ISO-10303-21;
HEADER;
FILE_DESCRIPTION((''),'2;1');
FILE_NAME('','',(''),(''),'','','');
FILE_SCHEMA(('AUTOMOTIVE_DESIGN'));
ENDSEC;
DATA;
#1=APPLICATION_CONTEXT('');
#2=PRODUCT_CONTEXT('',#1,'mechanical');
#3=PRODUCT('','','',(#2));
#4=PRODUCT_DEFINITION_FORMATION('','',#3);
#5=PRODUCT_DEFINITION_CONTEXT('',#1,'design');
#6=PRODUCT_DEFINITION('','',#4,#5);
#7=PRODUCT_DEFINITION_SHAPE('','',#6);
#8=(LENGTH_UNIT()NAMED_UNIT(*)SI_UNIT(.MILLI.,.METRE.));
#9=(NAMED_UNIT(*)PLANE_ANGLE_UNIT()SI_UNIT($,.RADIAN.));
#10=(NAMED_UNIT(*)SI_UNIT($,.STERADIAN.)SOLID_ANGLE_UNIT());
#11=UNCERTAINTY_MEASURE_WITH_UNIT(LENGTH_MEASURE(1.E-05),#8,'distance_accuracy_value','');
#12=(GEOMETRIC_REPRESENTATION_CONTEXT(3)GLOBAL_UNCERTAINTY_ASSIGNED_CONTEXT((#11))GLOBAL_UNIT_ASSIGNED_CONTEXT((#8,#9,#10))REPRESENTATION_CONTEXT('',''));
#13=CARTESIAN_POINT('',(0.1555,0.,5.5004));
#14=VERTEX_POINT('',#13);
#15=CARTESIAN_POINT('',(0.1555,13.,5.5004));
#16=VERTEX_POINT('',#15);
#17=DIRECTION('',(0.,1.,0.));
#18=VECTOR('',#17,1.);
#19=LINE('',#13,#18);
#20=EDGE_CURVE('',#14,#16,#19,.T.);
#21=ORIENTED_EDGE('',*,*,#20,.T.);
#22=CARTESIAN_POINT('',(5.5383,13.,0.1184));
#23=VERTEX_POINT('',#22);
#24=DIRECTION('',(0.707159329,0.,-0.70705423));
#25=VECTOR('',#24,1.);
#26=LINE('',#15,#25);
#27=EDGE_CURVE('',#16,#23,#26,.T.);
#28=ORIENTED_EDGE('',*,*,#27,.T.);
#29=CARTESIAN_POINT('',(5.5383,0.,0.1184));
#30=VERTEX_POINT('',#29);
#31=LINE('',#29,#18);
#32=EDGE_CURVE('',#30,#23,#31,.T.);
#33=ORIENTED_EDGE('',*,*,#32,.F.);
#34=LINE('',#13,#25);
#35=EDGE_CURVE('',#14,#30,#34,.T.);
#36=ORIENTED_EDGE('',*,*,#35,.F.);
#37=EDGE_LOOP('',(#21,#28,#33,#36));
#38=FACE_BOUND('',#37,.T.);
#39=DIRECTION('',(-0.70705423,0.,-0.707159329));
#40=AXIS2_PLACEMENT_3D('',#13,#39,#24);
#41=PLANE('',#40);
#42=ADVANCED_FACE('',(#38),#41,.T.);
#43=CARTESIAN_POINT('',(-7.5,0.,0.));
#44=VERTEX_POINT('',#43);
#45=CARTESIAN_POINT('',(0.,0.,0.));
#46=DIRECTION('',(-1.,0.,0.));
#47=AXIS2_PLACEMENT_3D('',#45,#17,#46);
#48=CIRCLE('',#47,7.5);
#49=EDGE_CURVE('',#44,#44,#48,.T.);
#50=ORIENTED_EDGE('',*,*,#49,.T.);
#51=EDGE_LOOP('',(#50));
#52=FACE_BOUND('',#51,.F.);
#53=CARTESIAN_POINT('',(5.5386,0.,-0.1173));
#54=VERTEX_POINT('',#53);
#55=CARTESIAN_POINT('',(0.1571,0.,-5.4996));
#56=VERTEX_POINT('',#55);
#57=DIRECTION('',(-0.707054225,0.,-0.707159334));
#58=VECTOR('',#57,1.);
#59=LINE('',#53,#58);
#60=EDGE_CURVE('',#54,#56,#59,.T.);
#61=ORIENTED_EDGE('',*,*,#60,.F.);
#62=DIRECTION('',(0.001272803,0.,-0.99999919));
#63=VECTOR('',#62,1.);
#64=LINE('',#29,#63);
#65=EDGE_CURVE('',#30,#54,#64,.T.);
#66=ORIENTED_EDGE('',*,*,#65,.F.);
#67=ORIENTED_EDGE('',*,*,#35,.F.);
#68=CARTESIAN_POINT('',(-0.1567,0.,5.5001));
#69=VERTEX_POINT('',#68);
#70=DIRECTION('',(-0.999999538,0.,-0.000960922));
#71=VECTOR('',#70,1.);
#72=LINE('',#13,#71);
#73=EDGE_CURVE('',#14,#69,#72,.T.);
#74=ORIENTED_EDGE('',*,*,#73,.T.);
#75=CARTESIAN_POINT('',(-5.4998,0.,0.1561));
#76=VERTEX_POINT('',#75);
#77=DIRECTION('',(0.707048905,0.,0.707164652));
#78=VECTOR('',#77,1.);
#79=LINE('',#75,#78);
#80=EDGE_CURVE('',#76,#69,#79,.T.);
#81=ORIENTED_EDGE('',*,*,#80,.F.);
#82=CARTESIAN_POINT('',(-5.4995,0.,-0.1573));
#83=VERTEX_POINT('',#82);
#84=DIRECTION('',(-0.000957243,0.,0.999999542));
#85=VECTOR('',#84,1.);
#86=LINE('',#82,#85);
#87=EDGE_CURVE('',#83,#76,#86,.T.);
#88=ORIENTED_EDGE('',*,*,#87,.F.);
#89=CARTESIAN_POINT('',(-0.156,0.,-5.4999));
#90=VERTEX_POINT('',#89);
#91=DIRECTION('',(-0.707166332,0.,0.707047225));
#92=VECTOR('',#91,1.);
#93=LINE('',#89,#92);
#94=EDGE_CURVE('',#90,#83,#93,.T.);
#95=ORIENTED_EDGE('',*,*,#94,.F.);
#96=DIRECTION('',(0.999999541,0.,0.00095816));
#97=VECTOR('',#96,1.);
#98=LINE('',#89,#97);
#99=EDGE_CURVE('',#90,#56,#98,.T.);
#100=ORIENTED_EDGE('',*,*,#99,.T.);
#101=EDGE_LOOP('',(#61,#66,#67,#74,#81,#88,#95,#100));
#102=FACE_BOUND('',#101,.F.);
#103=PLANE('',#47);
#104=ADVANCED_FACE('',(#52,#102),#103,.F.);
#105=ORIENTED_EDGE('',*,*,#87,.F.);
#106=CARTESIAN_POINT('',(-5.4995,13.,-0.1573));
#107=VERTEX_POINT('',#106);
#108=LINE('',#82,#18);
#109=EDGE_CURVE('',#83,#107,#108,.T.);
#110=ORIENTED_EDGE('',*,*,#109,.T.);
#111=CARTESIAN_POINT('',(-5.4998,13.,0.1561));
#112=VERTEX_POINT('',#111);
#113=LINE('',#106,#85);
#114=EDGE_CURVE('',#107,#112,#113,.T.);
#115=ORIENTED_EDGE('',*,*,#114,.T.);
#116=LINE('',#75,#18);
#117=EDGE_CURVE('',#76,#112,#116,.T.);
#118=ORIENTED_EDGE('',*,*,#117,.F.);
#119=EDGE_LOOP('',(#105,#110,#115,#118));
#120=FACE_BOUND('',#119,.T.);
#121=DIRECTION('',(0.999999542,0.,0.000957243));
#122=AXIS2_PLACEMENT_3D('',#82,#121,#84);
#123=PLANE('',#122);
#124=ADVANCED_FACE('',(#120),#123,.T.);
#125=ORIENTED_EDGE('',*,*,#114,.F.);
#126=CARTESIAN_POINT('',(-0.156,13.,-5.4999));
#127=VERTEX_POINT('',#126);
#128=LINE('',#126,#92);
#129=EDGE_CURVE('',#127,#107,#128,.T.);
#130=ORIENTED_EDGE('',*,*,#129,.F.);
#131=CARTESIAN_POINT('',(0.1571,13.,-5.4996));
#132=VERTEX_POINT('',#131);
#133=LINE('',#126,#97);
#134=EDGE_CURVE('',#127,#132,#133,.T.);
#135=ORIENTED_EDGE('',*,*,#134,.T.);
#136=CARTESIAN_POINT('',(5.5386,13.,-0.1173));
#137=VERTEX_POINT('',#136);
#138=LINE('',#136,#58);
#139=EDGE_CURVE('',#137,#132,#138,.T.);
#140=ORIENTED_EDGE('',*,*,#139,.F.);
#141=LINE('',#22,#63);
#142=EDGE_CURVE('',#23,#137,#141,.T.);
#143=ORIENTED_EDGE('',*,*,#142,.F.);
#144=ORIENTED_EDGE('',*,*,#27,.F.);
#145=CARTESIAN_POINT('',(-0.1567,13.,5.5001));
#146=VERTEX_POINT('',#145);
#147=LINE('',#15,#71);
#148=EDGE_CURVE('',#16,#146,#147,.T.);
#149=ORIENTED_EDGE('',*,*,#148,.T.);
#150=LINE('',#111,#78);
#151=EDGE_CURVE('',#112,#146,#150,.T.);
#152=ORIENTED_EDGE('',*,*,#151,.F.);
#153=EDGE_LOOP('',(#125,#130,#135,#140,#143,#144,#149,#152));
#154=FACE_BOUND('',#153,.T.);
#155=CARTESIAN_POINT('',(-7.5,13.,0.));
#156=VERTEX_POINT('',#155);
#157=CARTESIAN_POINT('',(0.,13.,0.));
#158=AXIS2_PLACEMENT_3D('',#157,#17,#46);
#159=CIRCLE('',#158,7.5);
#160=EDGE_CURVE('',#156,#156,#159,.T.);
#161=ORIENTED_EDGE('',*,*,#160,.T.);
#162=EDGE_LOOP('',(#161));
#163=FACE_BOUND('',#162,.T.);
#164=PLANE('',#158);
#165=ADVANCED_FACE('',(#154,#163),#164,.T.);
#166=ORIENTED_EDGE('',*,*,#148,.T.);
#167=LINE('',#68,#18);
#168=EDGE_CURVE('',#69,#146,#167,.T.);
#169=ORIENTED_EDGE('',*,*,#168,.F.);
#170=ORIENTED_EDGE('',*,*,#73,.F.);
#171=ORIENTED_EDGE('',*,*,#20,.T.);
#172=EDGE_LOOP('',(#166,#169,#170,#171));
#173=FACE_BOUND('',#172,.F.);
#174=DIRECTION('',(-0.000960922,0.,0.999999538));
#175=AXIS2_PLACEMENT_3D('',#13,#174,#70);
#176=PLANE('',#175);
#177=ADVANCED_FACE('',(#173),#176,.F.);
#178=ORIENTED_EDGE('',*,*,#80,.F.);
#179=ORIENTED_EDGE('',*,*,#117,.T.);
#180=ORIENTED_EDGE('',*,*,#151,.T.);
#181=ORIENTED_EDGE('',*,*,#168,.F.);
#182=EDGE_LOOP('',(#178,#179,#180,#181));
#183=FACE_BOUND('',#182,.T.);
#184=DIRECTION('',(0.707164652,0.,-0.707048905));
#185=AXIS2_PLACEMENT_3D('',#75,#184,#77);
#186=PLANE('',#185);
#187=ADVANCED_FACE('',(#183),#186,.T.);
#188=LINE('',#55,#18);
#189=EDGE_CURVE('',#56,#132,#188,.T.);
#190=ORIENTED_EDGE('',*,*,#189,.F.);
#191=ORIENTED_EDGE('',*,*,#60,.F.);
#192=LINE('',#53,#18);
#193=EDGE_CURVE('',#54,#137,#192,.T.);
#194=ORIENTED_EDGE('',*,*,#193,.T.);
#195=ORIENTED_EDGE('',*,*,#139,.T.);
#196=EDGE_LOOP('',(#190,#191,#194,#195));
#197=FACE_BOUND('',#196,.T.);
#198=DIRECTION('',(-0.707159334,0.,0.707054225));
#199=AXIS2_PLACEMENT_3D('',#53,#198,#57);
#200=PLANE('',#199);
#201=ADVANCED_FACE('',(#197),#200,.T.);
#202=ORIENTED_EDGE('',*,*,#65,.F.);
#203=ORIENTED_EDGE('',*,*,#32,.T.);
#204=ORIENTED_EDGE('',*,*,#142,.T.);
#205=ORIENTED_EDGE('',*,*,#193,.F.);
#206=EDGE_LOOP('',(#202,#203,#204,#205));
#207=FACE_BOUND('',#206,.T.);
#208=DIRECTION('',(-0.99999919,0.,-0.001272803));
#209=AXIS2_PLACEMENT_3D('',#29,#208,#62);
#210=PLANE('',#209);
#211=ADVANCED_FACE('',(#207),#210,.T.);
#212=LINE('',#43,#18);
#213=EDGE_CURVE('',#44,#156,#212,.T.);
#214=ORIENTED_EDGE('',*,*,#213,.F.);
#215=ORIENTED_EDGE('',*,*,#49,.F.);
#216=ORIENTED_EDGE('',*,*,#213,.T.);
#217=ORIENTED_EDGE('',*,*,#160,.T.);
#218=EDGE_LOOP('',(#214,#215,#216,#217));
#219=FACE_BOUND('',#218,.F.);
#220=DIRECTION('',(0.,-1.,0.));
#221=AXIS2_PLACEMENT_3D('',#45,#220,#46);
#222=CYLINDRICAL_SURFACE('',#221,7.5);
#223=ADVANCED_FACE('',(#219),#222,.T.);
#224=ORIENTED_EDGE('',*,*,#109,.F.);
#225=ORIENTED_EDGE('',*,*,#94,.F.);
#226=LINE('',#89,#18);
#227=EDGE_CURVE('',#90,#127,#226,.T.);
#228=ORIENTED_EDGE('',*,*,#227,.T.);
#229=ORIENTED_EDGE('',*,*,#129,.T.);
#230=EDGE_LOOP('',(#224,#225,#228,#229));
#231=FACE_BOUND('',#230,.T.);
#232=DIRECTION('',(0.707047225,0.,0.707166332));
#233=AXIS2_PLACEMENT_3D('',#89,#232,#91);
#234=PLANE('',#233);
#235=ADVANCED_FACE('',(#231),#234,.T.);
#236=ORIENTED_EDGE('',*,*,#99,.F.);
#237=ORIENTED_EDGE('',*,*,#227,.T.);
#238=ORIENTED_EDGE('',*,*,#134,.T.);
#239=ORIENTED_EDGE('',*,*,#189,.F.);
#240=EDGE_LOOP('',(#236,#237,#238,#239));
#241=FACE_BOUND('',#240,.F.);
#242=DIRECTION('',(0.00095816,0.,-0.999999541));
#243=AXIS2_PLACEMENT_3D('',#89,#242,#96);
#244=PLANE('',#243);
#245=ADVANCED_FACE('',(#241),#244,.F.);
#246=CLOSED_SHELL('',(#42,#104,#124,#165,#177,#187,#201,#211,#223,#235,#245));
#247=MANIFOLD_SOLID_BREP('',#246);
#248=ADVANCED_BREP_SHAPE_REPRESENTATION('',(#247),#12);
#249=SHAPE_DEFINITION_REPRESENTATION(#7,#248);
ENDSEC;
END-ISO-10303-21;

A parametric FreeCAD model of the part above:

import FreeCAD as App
import Part
import Sketcher
from FreeCAD import Vector

doc = App.newDocument("Part")
params = doc.addObject("Spreadsheet::Sheet", "Params")
for row, (alias, value) in enumerate([
    ("sketch1_diameter", "15 mm"),
    ("pad1_length", "13 mm"),
    ("pocket1_length", "13 mm"),
], start=1):
    params.set(f"A{row}", alias)
    params.set(f"B{row}", "=" + value)
    params.setAlias(f"B{row}", alias)

body = doc.addObject("PartDesign::Body", "Body")

sketch1 = body.newObject("Sketcher::SketchObject", "Sketch")
sketch1.AttachmentSupport = (doc.getObject("XZ_Plane"), [""])
sketch1.MapMode = "FlatFace"
sketch1.addGeometry(Part.Circle(Vector(0, 0, 0), Vector(0, 0, 1), 7.5), False)
sketch1.addConstraint([
    Sketcher.Constraint("Coincident", 0, 3, -1, 1),
    Sketcher.Constraint("Diameter", 0, 15.0),
])
sketch1.setExpression("Constraints[1]", "Params.sketch1_diameter")
pad1 = body.newObject("PartDesign::Pad", "Pad")
pad1.Profile = sketch1
pad1.setExpression("Length", "Params.pad1_length")
pad1.Reversed = True

sketch2 = body.newObject("Sketcher::SketchObject", "Sketch001")
sketch2.AttachmentSupport = (doc.getObject("XZ_Plane"), [""])
sketch2.MapMode = "FlatFace"
sketch2.addGeometry([
    Part.LineSegment(Vector(5.5383, 0.1184, 0), Vector(0.1555, 5.5004, 0)),
    Part.LineSegment(Vector(0.1555, 5.5004, 0), Vector(-0.1567, 5.5001, 0)),
    Part.LineSegment(Vector(-0.156687, 5.500087, 0), Vector(-5.4998, 0.1561, 0)),
    Part.LineSegment(Vector(-5.4998, 0.1561, 0), Vector(-5.4995, -0.1573, 0)),
    Part.LineSegment(Vector(-5.4995, -0.1573, 0), Vector(-0.156, -5.4999, 0)),
    Part.LineSegment(Vector(-0.156, -5.4999, 0), Vector(0.1571, -5.4996, 0)),
    Part.LineSegment(Vector(0.1571, -5.4996, 0), Vector(5.5386, -0.1173, 0)),
    Part.LineSegment(Vector(5.5386, -0.1173, 0), Vector(5.5383, 0.1184, 0)),
], False)
sketch2.addConstraint([
    Sketcher.Constraint("Coincident", 0, 2, 1, 1),
    Sketcher.Constraint("Coincident", 1, 2, 2, 1),
    Sketcher.Constraint("Coincident", 2, 2, 3, 1),
    Sketcher.Constraint("Coincident", 3, 2, 4, 1),
    Sketcher.Constraint("Coincident", 4, 2, 5, 1),
    Sketcher.Constraint("Coincident", 5, 2, 6, 1),
    Sketcher.Constraint("Coincident", 6, 2, 7, 1),
    Sketcher.Constraint("Coincident", 7, 2, 0, 1),
    Sketcher.Constraint("Perpendicular", 0, 2),
    Sketcher.Constraint("Perpendicular", 1, 3),
    Sketcher.Constraint("Perpendicular", 2, 4),
    Sketcher.Constraint("Perpendicular", 3, 5),
    Sketcher.Constraint("Perpendicular", 4, 6),
    Sketcher.Constraint("Perpendicular", 5, 7),
    Sketcher.Constraint("DistanceY", 4, 2, 1, 2, 11.0),
    Sketcher.Constraint("DistanceY", -1, 1, 1, 2, 5.5),
    Sketcher.Constraint("DistanceY", 4, 2, 0, 2, 11.0003),
    Sketcher.Constraint("DistanceY", 3, 2, 6, 2, 0.04),
    Sketcher.Constraint("Distance", 2, 7.557),
    Sketcher.Constraint("Distance", 5, 0.313),
    Sketcher.Constraint("DistanceY", -1, 1, 2, 2, 0.156),
    Sketcher.Constraint("DistanceX", 4, 2, -1, 1, 0.156),
    Sketcher.Constraint("DistanceX", 3, 2, 0, 2, 5.655),
    Sketcher.Constraint("DistanceX", 2, 2, 5, 2, 5.657),
])
pocket1 = body.newObject("PartDesign::Pocket", "Pocket")
pocket1.Profile = sketch2
pocket1.setExpression("Length", "Params.pocket1_length")

doc.recompute()
